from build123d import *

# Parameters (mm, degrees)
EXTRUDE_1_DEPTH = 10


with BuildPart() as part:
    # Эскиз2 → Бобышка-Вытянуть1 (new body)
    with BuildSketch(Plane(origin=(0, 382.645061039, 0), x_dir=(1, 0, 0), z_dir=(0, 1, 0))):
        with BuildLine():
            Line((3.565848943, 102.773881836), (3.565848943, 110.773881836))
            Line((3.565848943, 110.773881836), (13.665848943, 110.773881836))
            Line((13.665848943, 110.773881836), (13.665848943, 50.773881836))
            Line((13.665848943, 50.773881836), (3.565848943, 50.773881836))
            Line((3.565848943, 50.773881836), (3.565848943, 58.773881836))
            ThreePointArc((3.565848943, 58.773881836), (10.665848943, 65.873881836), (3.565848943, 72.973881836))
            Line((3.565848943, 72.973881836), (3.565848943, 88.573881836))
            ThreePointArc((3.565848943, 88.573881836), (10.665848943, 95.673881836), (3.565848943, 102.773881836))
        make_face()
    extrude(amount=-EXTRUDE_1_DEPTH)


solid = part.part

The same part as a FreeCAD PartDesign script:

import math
import FreeCAD as App
import Part
import Sketcher

V = App.Vector

doc = App.newDocument("Part")
body = doc.addObject("PartDesign::Body", "Body")

# Sketch on XZ plane
sketch1 = body.newObject("Sketcher::SketchObject", "Sketch")
sketch1.AttachmentSupport = (doc.getObject("XZ_Plane"), [""])
sketch1.MapMode = "FlatFace"
sketch1.AttachmentOffset = App.Placement(V(0, 0, -382.645061), App.Rotation())
sketch1.addGeometry(Part.LineSegment(V(4, -111, 0), V(4, -103, 0)), False)
sketch1.addGeometry(Part.ArcOfCircle(Part.Circle(V(4, -96, 0), V(0, 0, 1), 7), math.radians(-90), math.radians(90)), False)
sketch1.addGeometry(Part.LineSegment(V(4, -89, 0), V(4, -73, 0)), False)
sketch1.addGeometry(Part.ArcOfCircle(Part.Circle(V(4, -66, 0), V(0, 0, 1), 7), math.radians(-90), math.radians(90)), False)
sketch1.addGeometry(Part.LineSegment(V(4, -59, 0), V(4, -51, 0)), False)
sketch1.addGeometry(Part.LineSegment(V(4, -51, 0), V(14, -51, 0)), False)
sketch1.addGeometry(Part.LineSegment(V(14, -51, 0), V(14, -111, 0)), False)
sketch1.addGeometry(Part.LineSegment(V(14, -111, 0), V(4, -111, 0)), False)
sketch1.addConstraint(Sketcher.Constraint("Coincident", 0, 2, 1, 1))
sketch1.addConstraint(Sketcher.Constraint("Coincident", 1, 2, 2, 1))
sketch1.addConstraint(Sketcher.Constraint("Coincident", 2, 2, 3, 1))
sketch1.addConstraint(Sketcher.Constraint("Coincident", 3, 2, 4, 1))
sketch1.addConstraint(Sketcher.Constraint("Coincident", 4, 2, 5, 1))
sketch1.addConstraint(Sketcher.Constraint("Coincident", 5, 2, 6, 1))
sketch1.addConstraint(Sketcher.Constraint("Coincident", 6, 2, 7, 1))
sketch1.addConstraint(Sketcher.Constraint("Coincident", 7, 2, 0, 1))
sketch1.addConstraint(Sketcher.Constraint("Vertical", 0))
sketch1.addConstraint(Sketcher.Constraint("Vertical", 2))
sketch1.addConstraint(Sketcher.Constraint("Vertical", 4))
sketch1.addConstraint(Sketcher.Constraint("Horizontal", 5))
sketch1.addConstraint(Sketcher.Constraint("Vertical", 6))
sketch1.addConstraint(Sketcher.Constraint("Horizontal", 7))
sketch1.addConstraint(Sketcher.Constraint("Equal", 1, 3))
sketch1.addConstraint(Sketcher.Constraint("Vertical", 1, 3, 3, 3))
sketch1.addConstraint(Sketcher.Constraint("Vertical", 3, 3, 0, 2))
sketch1.addConstraint(Sketcher.Constraint("Vertical", 0, 2, 1, 2))
sketch1.addConstraint(Sketcher.Constraint("Vertical", 2, 2, 3, 2))
sketch1.addConstraint(Sketcher.Constraint("Equal", 0, 4))
sketch1.addConstraint(Sketcher.Constraint("Radius", 1, 7.1))
sketch1.addConstraint(Sketcher.Constraint("DistanceY", 0, 1, 0, 2, 8.0))
sketch1.addConstraint(Sketcher.Constraint("DistanceY", 6, 2, 6, 1, 60.0))
sketch1.addConstraint(Sketcher.Constraint("DistanceX", 5, 1, 5, 2, 10.1))
sketch1.addConstraint(Sketcher.Constraint("DistanceX", -1, 1, 1, 3, 3.565849))
sketch1.addConstraint(Sketcher.Constraint("DistanceY", 1, 3, -1, 1, 95.673882))
pad1 = body.newObject("PartDesign::Pad", "Pad")
pad1.Profile = sketch1
pad1.Length = 10

doc.recompute()
